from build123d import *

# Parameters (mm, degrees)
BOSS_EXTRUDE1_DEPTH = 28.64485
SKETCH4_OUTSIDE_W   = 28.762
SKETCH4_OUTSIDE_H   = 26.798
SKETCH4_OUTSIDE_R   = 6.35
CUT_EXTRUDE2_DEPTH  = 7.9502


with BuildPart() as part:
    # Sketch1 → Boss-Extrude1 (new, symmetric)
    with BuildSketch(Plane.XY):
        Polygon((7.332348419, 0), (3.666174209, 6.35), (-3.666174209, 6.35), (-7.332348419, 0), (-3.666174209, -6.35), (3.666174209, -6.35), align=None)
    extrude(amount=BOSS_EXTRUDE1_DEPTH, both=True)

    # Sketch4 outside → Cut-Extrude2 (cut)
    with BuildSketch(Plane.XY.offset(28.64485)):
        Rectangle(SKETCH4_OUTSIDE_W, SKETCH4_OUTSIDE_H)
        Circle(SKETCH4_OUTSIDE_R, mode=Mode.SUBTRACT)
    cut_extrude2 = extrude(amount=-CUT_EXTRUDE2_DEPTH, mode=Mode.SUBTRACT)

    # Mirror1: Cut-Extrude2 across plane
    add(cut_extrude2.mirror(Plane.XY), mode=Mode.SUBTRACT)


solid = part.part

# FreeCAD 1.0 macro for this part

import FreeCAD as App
import Part
import Sketcher

V = App.Vector
Q = App.Units.Quantity

doc = App.newDocument("Part")
body = doc.addObject("PartDesign::Body", "Body")

# Sketch on XY plane
sketch1 = body.newObject("Sketcher::SketchObject", "Sketch")
sketch1.AttachmentSupport = (doc.getObject("XY_Plane"), [""])
sketch1.MapMode = "FlatFace"
sketch1.addGeometry([
    Part.LineSegment(V(7, 0, 0), V(4, 6, 0)),  # 0
    Part.LineSegment(V(4, 6, 0), V(-4, 6, 0)),  # 1
    Part.LineSegment(V(-4, 6, 0), V(-7, 0, 0)),  # 2
    Part.LineSegment(V(-7, 0, 0), V(-4, -6, 0)),  # 3
    Part.LineSegment(V(-4, -6, 0), V(4, -6, 0)),  # 4
    Part.LineSegment(V(4, -6, 0), V(7, 0, 0)),  # 5
], False)
sketch1.addConstraint([
    Sketcher.Constraint("Coincident", 0, 2, 1, 1),
    Sketcher.Constraint("Coincident", 1, 2, 2, 1),
    Sketcher.Constraint("Coincident", 2, 2, 3, 1),
    Sketcher.Constraint("Coincident", 3, 2, 4, 1),
    Sketcher.Constraint("Coincident", 4, 2, 5, 1),
    Sketcher.Constraint("Coincident", 5, 2, 0, 1),
    Sketcher.Constraint("Horizontal", 1),
    Sketcher.Constraint("Horizontal", 4),
    Sketcher.Constraint("Symmetric", 0, 2, 3, 2, -1, 1),
    Sketcher.Constraint("Symmetric", 2, 2, 5, 2, -1, 1),
    Sketcher.Constraint("PointOnObject", 2, 2, -1),
    Sketcher.Constraint("Parallel", 2, 5),
    Sketcher.Constraint("Vertical", 1, 2, 3, 2),
    Sketcher.Constraint("Angle", 0, Q("120 deg")),
    Sketcher.Constraint("DistanceY", 3, 2, 1, 2, Q("0.5 in")),
    Sketcher.Constraint("DistanceX", 1, 2, 1, 1, 7.332348),
])
pad1 = body.newObject("PartDesign::Pad", "Pad")
pad1.Profile = sketch1
pad1.Length = Q("2.2555 in")
pad1.Midplane = True

# Sketch on XY plane
sketch2 = body.newObject("Sketcher::SketchObject", "Sketch001")
sketch2.AttachmentSupport = (doc.getObject("XY_Plane"), [""])
sketch2.MapMode = "FlatFace"
sketch2.AttachmentOffset = App.Placement(V(0, 0, 28.64485), App.Rotation())
sketch2.addGeometry([
    Part.LineSegment(V(-14, 13, 0), V(-14, -13, 0)),  # 0
    Part.LineSegment(V(-14, -13, 0), V(14, -13, 0)),  # 1
    Part.LineSegment(V(14, -13, 0), V(14, 13, 0)),  # 2
    Part.LineSegment(V(14, 13, 0), V(-14, 13, 0)),  # 3
    Part.Circle(V(0, 0, 0), V(0, 0, 1), 6),  # 4
], False)
sketch2.addConstraint([
    Sketcher.Constraint("Coincident", 0, 2, 1, 1),
    Sketcher.Constraint("Coincident", 1, 2, 2, 1),
    Sketcher.Constraint("Coincident", 2, 2, 3, 1),
    Sketcher.Constraint("Coincident", 3, 2, 0, 1),
    Sketcher.Constraint("Vertical", 0),
    Sketcher.Constraint("Horizontal", 1),
    Sketcher.Constraint("Vertical", 2),
    Sketcher.Constraint("Horizontal", 3),
    Sketcher.Constraint("Coincident", 4, 3, -1, 1),
    Sketcher.Constraint("Symmetric", 0, 2, 2, 2, -1, 1),
    Sketcher.Constraint("Diameter", 4, Q("0.5 in")),
    Sketcher.Constraint("DistanceX", 1, 1, 1, 2, 28.762),
    Sketcher.Constraint("DistanceY", 0, 2, 0, 1, 26.798),
])
pocket1 = body.newObject("PartDesign::Pocket", "Pocket")
pocket1.Profile = sketch2
pocket1.Length = Q("0.313 in")
doc.recompute()

mirrored = body.newObject("PartDesign::Mirrored", "Mirrored")
mirrored.Originals = [pocket1]
mirrored.MirrorPlane = (doc.getObject("XY_Plane"), [""])
body.Tip = mirrored

doc.recompute()
